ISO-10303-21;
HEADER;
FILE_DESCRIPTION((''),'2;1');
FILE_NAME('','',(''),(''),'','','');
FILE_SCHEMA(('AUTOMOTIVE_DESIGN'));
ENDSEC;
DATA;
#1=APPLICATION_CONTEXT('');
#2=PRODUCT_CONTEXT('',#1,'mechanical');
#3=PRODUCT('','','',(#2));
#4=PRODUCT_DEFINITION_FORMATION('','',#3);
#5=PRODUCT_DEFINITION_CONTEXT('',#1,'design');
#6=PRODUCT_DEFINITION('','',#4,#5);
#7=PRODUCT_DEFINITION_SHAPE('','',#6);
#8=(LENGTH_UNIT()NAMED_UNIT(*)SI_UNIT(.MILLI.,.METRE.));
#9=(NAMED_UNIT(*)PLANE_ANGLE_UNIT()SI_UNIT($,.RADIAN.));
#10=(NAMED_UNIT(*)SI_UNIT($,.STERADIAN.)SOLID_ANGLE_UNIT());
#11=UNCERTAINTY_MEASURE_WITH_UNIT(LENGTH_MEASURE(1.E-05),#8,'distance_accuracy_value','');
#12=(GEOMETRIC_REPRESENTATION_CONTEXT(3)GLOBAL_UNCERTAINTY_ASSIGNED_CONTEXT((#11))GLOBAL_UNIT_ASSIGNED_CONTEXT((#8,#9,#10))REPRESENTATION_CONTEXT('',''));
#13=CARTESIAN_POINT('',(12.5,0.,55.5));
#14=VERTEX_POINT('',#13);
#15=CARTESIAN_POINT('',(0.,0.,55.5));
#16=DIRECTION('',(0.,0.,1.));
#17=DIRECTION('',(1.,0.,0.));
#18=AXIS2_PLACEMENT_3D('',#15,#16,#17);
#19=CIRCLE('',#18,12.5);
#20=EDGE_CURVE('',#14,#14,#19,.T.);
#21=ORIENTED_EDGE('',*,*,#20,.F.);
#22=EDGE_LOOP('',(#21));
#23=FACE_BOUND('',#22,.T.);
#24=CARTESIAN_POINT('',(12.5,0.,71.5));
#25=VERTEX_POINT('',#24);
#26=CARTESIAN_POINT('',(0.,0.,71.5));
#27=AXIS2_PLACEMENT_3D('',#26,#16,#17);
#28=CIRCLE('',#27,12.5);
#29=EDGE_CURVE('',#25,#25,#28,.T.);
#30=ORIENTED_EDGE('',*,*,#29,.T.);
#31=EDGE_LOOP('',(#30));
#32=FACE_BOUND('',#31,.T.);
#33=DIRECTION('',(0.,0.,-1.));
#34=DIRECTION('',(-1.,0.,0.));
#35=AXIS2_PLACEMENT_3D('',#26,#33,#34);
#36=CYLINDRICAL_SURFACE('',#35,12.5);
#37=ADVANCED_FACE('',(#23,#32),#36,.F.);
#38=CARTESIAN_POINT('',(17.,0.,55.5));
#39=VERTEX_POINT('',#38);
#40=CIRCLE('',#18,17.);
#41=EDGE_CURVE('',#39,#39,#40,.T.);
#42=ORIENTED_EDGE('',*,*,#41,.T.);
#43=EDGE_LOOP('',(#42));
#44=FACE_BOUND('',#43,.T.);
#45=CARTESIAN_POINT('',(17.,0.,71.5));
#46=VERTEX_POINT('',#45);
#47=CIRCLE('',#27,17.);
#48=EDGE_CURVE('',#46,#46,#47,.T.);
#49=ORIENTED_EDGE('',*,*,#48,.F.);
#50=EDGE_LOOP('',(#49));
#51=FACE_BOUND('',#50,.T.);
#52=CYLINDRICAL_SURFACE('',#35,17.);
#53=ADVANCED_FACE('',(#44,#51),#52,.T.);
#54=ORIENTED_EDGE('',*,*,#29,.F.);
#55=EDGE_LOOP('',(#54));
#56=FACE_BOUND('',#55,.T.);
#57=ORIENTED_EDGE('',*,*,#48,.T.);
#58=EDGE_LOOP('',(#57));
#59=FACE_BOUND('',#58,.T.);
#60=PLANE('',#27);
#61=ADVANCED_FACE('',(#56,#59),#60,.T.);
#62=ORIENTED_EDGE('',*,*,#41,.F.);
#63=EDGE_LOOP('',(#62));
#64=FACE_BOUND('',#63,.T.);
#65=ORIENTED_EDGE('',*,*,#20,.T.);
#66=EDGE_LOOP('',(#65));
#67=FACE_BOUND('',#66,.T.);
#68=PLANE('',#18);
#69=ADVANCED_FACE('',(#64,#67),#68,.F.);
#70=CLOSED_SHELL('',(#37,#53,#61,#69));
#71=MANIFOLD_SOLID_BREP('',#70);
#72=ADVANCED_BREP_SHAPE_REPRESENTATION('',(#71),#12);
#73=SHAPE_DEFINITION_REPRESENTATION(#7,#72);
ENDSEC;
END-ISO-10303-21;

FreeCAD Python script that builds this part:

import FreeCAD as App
import Part
import Sketcher

V = App.Vector
Q = App.Units.Quantity

doc = App.newDocument("Part")
body = doc.addObject("PartDesign::Body", "Body")

sketch1 = body.newObject("Sketcher::SketchObject", "Sketch")
sketch1.AttachmentSupport = (doc.getObject("XY_Plane"), [""])
sketch1.MapMode = "FlatFace"
sketch1.AttachmentOffset = App.Placement(V(0, 0, 55.5), App.Rotation())
sketch1.addGeometry(Part.Circle(V(0, 0, 0), V(0, 0, 1), 17), False)
sketch1.addGeometry(Part.Circle(V(0, 0, 0), V(0, 0, 1), 12), False)
sketch1.addConstraint(Sketcher.Constraint("Coincident", 0, 3, -1, 1))
sketch1.addConstraint(Sketcher.Constraint("Coincident", 1, 3, -1, 1))
sketch1.addConstraint(Sketcher.Constraint("Diameter", 0, Q("34 mm")))
sketch1.addConstraint(Sketcher.Constraint("Diameter", 1, Q("25 mm")))
pad1 = body.newObject("PartDesign::Pad", "Pad")
pad1.Profile = sketch1
pad1.Length = 16

doc.recompute()
